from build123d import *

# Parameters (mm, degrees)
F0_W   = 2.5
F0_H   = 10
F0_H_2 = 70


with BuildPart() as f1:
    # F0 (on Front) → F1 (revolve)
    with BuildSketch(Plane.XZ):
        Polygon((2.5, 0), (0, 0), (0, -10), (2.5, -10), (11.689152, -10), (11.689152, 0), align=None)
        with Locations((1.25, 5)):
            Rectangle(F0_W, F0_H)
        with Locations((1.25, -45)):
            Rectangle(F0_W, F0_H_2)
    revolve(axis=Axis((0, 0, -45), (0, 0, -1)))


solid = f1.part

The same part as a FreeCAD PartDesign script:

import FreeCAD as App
import Part
import Sketcher

V = App.Vector

doc = App.newDocument("Part")
body = doc.addObject("PartDesign::Body", "Body")

sketch1 = body.newObject("Sketcher::SketchObject", "Sketch")
sketch1.AttachmentSupport = (doc.getObject("XZ_Plane"), [""])
sketch1.MapMode = "FlatFace"
sketch1.addGeometry([
    Part.LineSegment(V(2.5, -10, 0), V(11.7, -10, 0)),
    Part.LineSegment(V(11.7, -10, 0), V(11.7, 0, 0)),
    Part.LineSegment(V(11.7, 0, 0), V(2.5, 0, 0)),
    Part.LineSegment(V(2.5, 0, 0), V(2.5, 10, 0)),
    Part.LineSegment(V(2.5, 10, 0), V(0, 10, 0)),
    Part.LineSegment(V(0, 10, 0), V(0, -80, 0)),
    Part.LineSegment(V(0, -80, 0), V(2.5, -80, 0)),
    Part.LineSegment(V(2.5, -80, 0), V(2.5, -10, 0)),
], False)
sketch1.addConstraint([
    Sketcher.Constraint("Coincident", 0, 2, 1, 1),
    Sketcher.Constraint("Coincident", 1, 2, 2, 1),
    Sketcher.Constraint("Coincident", 2, 2, 3, 1),
    Sketcher.Constraint("Coincident", 3, 2, 4, 1),
    Sketcher.Constraint("Coincident", 4, 2, 5, 1),
    Sketcher.Constraint("Coincident", 5, 2, 6, 1),
    Sketcher.Constraint("Coincident", 6, 2, 7, 1),
    Sketcher.Constraint("Coincident", 7, 2, 0, 1),
    Sketcher.Constraint("Horizontal", 0),
    Sketcher.Constraint("Vertical", 1),
    Sketcher.Constraint("Horizontal", 2),
    Sketcher.Constraint("Vertical", 3),
    Sketcher.Constraint("Horizontal", 4),
    Sketcher.Constraint("Vertical", 5),
    Sketcher.Constraint("Horizontal", 6),
    Sketcher.Constraint("Vertical", 7),
    Sketcher.Constraint("Symmetric", 3, 2, 7, 2, -1),
    Sketcher.Constraint("PointOnObject", 1, 2, -1),
    Sketcher.Constraint("PointOnObject", 4, 2, -2),
    Sketcher.Constraint("DistanceY", 1, 1, 1, 2, 10.0),
    Sketcher.Constraint("DistanceY", 5, 2, 5, 1, 90.0),
    Sketcher.Constraint("DistanceX", 4, 2, 4, 1, 2.5),
    Sketcher.Constraint("DistanceX", 0, 1, 0, 2, 9.189152),
])
revolution = body.newObject("PartDesign::Revolution", "Revolution")
revolution.Profile = sketch1
revolution.ReferenceAxis = (sketch1, ["V_Axis"])
revolution.Angle = 360

doc.recompute()
